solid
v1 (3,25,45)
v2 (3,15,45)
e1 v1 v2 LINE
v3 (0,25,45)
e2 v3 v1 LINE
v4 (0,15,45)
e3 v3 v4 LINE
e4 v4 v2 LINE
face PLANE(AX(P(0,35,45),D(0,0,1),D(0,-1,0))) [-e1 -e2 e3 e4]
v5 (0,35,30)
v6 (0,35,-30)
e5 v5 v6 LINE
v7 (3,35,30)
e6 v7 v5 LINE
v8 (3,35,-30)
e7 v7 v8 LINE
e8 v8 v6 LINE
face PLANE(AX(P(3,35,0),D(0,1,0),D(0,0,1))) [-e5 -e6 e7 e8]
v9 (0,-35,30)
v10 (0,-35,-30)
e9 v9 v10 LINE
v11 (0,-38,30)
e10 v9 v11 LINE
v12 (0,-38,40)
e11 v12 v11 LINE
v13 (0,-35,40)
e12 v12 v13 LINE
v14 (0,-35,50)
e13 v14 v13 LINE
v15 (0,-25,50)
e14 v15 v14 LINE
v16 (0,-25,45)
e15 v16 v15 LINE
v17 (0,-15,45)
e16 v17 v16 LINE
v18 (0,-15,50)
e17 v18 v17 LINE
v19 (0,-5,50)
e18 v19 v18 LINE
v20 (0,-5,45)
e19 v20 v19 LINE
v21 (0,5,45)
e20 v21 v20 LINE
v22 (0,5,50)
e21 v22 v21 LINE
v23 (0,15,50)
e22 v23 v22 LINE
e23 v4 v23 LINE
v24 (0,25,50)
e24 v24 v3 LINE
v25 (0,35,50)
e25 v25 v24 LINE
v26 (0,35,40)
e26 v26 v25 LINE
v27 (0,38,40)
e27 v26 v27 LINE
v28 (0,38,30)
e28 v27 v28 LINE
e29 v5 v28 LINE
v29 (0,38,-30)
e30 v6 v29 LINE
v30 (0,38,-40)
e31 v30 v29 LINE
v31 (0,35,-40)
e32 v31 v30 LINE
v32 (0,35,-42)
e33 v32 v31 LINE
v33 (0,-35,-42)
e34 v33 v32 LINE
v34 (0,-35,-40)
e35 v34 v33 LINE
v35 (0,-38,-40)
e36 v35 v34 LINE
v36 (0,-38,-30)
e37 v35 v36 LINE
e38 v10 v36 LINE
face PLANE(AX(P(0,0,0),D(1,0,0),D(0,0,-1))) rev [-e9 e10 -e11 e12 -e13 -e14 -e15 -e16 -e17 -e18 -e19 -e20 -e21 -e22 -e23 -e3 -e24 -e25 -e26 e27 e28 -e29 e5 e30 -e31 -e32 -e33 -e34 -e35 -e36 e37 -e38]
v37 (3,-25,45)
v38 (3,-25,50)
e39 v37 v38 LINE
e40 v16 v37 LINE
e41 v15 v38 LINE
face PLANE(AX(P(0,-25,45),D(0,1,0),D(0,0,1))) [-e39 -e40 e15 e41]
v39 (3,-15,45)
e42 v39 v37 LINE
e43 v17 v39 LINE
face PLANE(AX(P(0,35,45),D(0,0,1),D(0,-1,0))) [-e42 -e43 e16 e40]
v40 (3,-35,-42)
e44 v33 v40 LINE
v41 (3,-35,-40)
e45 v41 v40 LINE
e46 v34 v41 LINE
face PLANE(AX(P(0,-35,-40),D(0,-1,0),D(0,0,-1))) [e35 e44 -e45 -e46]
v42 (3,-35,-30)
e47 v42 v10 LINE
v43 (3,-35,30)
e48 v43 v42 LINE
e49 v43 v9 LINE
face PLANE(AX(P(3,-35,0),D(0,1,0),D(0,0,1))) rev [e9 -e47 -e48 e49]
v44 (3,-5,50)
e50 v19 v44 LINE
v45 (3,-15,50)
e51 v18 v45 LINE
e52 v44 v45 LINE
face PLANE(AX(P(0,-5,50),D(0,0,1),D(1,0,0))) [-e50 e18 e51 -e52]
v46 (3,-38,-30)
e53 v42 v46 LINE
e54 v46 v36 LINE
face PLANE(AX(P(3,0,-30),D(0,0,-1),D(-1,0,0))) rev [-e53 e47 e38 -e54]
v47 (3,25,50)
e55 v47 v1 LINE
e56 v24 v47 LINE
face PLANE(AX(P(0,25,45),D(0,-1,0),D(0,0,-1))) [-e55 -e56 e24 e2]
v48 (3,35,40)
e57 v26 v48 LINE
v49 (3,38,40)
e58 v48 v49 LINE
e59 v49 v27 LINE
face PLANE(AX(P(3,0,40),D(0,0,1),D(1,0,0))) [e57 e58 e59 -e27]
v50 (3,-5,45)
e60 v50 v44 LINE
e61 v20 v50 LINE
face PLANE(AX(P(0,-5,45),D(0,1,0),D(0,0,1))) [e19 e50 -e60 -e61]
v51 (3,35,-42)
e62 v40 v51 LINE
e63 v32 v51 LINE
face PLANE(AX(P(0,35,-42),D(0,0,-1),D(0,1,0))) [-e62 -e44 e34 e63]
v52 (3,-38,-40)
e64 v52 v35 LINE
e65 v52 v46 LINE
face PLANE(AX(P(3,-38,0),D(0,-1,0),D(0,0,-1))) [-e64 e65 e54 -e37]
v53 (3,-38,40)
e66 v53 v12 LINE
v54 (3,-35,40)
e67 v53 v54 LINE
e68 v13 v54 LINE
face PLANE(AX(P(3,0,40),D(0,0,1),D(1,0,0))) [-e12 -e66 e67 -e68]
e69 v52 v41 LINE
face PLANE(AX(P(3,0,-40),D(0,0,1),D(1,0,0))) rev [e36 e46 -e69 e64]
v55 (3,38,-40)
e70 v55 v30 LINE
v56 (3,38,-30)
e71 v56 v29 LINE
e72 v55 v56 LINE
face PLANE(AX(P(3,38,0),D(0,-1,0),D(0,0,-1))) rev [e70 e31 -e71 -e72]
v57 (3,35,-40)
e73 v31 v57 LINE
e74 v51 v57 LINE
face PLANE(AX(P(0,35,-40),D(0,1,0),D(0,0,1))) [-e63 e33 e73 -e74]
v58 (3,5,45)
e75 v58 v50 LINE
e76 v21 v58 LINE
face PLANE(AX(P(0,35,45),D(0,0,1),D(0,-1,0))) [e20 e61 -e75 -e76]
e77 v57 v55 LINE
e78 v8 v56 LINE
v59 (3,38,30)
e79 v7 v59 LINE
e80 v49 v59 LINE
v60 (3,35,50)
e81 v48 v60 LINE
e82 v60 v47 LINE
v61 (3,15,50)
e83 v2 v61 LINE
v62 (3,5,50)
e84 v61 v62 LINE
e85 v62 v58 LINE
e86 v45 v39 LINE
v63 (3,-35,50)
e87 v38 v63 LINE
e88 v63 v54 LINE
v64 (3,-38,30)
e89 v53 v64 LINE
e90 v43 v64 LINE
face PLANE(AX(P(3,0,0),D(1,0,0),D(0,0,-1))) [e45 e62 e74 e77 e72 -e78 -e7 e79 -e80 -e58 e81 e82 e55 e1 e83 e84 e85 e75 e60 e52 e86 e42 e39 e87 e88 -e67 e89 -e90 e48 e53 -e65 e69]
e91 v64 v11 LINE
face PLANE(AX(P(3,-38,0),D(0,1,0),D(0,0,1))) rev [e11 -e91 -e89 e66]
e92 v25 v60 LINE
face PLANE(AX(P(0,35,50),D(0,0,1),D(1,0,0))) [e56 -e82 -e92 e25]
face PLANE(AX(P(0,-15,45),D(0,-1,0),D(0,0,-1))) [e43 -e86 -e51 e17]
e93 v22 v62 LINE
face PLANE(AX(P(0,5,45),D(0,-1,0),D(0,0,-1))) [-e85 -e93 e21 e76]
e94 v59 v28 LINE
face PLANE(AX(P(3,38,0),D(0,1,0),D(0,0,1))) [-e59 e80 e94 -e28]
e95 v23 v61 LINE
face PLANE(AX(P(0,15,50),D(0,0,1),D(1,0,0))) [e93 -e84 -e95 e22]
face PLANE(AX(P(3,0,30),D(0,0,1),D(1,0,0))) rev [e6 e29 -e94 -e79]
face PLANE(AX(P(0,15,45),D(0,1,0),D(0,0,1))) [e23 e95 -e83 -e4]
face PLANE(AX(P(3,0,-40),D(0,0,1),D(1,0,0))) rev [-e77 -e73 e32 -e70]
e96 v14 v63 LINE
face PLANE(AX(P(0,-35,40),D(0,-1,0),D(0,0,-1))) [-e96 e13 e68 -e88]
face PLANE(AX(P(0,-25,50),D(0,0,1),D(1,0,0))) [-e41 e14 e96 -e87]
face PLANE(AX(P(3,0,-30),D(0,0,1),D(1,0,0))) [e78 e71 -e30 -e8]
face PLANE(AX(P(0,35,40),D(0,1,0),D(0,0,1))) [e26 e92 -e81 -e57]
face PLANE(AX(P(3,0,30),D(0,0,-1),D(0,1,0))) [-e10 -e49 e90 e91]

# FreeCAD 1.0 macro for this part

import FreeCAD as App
import Part
import Sketcher

V = App.Vector


def add_polygon(sketch, points):
    """Adds a closed chain of lines whose ends are joined by coincident constraints."""
    first, n = sketch.GeometryCount, len(points)
    for a, b in zip(points, points[1:] + points[:1]):
        sketch.addGeometry(Part.LineSegment(App.Vector(*a, 0), App.Vector(*b, 0)), False)
    for i in range(n):
        sketch.addConstraint(Sketcher.Constraint("Coincident", first + i, 2, first + (i + 1) % n, 1))

doc = App.newDocument("Part")
body = doc.addObject("PartDesign::Body", "Body")

# Sketch on YZ plane
sketch1 = body.newObject("Sketcher::SketchObject", "Sketch")
sketch1.AttachmentSupport = (doc.getObject("YZ_Plane"), [""])
sketch1.MapMode = "FlatFace"
add_polygon(sketch1, [(38, 40), (-38, 40), (-38, 30), (-35, 30), (-35, -30), (-38, -30), (-38, -40), (38, -40), (38, -30), (35, -30), (35, 30), (38, 30)])  # lines 0-11
sketch1.addConstraint([
    Sketcher.Constraint("Horizontal", 0),
    Sketcher.Constraint("Vertical", 1),
    Sketcher.Constraint("Horizontal", 2),
    Sketcher.Constraint("Vertical", 3),
    Sketcher.Constraint("Horizontal", 4),
    Sketcher.Constraint("Vertical", 5),
    Sketcher.Constraint("Horizontal", 6),
    Sketcher.Constraint("Vertical", 7),
    Sketcher.Constraint("Horizontal", 8),
    Sketcher.Constraint("Vertical", 9),
    Sketcher.Constraint("Horizontal", 10),
    Sketcher.Constraint("Vertical", 11),
    Sketcher.Constraint("Symmetric", 0, 2, 6, 2, -1, 1),
    Sketcher.Constraint("Symmetric", 2, 2, 8, 2, -1, 1),
    Sketcher.Constraint("Symmetric", 4, 2, 10, 2, -1, 1),
    Sketcher.Constraint("Symmetric", 4, 2, 7, 2, -2),
    Sketcher.Constraint("DistanceX", 0, 2, 0, 1, 76.0),
    Sketcher.Constraint("DistanceX", 2, 1, 2, 2, 3.0),
    Sketcher.Constraint("DistanceY", 1, 2, 1, 1, 10.0),
    Sketcher.Constraint("DistanceY", 3, 2, 3, 1, 60.0),
])
pad1 = body.newObject("PartDesign::Pad", "Pad")
pad1.Profile = sketch1
pad1.Length = 3

# Sketch on YZ plane
sketch2 = body.newObject("Sketcher::SketchObject", "Sketch001")
sketch2.AttachmentSupport = (doc.getObject("YZ_Plane"), [""])
sketch2.MapMode = "FlatFace"
sketch2.AttachmentOffset = App.Placement(V(0, 0, 3), App.Rotation())
add_polygon(sketch2, [(35, -40), (-35, -40), (-35, -42), (35, -42)])  # lines 0-3
sketch2.addConstraint([
    Sketcher.Constraint("Horizontal", 0),
    Sketcher.Constraint("Vertical", 1),
    Sketcher.Constraint("Horizontal", 2),
    Sketcher.Constraint("Vertical", 3),
    Sketcher.Constraint("DistanceX", 0, 2, 0, 1, 70.0),
    Sketcher.Constraint("DistanceY", 1, 2, 1, 1, 2.0),
    Sketcher.Constraint("DistanceX", 0, 2, -1, 1, 35.0),
    Sketcher.Constraint("DistanceY", 0, 2, -1, 1, 40.0),
])
pad2 = body.newObject("PartDesign::Pad", "Pad001")
pad2.Profile = sketch2
pad2.Length = 3
pad2.Reversed = True

# Sketch on YZ plane
sketch3 = body.newObject("Sketcher::SketchObject", "Sketch002")
sketch3.AttachmentSupport = (doc.getObject("YZ_Plane"), [""])
sketch3.MapMode = "FlatFace"
sketch3.AttachmentOffset = App.Placement(V(0, 0, 3), App.Rotation())
add_polygon(sketch3, [(35, 45), (-35, 45), (-35, 40), (35, 40)])  # lines 0-3
sketch3.addConstraint([
    Sketcher.Constraint("Horizontal", 0),
    Sketcher.Constraint("Vertical", 1),
    Sketcher.Constraint("Horizontal", 2),
    Sketcher.Constraint("Vertical", 3),
    Sketcher.Constraint("DistanceX", 0, 2, 0, 1, 70.0),
    Sketcher.Constraint("DistanceY", 1, 2, 1, 1, 5.0),
    Sketcher.Constraint("DistanceX", 0, 2, -1, 1, 35.0),
    Sketcher.Constraint("DistanceY", -1, 1, 0, 2, 45.0),
])
pad3 = body.newObject("PartDesign::Pad", "Pad002")
pad3.Profile = sketch3
pad3.Length = 3
pad3.Reversed = True

# Sketch on YZ plane
sketch4 = body.newObject("Sketcher::SketchObject", "Sketch003")
sketch4.AttachmentSupport = (doc.getObject("YZ_Plane"), [""])
sketch4.MapMode = "FlatFace"
sketch4.AttachmentOffset = App.Placement(V(0, 0, 3), App.Rotation())
add_polygon(sketch4, [(35, 50), (25, 50), (25, 45), (35, 45)])  # lines 0-3
add_polygon(sketch4, [(15, 50), (5, 50), (5, 45), (15, 45)])  # lines 4-7
add_polygon(sketch4, [(-5, 50), (-15, 50), (-15, 45), (-5, 45)])  # lines 8-11
add_polygon(sketch4, [(-25, 50), (-35, 50), (-35, 45), (-25, 45)])  # lines 12-15
sketch4.addConstraint([
    Sketcher.Constraint("Horizontal", 0),
    Sketcher.Constraint("Vertical", 1),
    Sketcher.Constraint("Horizontal", 2),
    Sketcher.Constraint("Vertical", 3),
    Sketcher.Constraint("Horizontal", 4),
    Sketcher.Constraint("Vertical", 5),
    Sketcher.Constraint("Horizontal", 6),
    Sketcher.Constraint("Vertical", 7),
    Sketcher.Constraint("Horizontal", 8),
    Sketcher.Constraint("Vertical", 9),
    Sketcher.Constraint("Horizontal", 10),
    Sketcher.Constraint("Vertical", 11),
    Sketcher.Constraint("Horizontal", 12),
    Sketcher.Constraint("Vertical", 13),
    Sketcher.Constraint("Horizontal", 14),
    Sketcher.Constraint("Vertical", 15),
    Sketcher.Constraint("Symmetric", 7, 2, 8, 2, -2),
    Sketcher.Constraint("Symmetric", 5, 2, 10, 2, -2),
    Sketcher.Constraint("Symmetric", 3, 2, 12, 2, -2),
    Sketcher.Constraint("Symmetric", 1, 2, 14, 2, -2),
    Sketcher.Constraint("Horizontal", 3, 2, 4, 2),
    Sketcher.Constraint("Horizontal", 2, 2, 5, 2),
    Sketcher.Constraint("Equal", 2, 4),
    Sketcher.Constraint("DistanceX", 0, 2, 0, 1, 10.0),
    Sketcher.Constraint("DistanceY", 1, 2, 1, 1, 5.0),
    Sketcher.Constraint("DistanceX", -1, 1, 0, 2, 25.0),
    Sketcher.Constraint("DistanceY", -1, 1, 0, 2, 50.0),
    Sketcher.Constraint("DistanceX", -1, 1, 4, 2, 5.0),
])
pad4 = body.newObject("PartDesign::Pad", "Pad003")
pad4.Profile = sketch4
pad4.Length = 3
pad4.Reversed = True

doc.recompute()
